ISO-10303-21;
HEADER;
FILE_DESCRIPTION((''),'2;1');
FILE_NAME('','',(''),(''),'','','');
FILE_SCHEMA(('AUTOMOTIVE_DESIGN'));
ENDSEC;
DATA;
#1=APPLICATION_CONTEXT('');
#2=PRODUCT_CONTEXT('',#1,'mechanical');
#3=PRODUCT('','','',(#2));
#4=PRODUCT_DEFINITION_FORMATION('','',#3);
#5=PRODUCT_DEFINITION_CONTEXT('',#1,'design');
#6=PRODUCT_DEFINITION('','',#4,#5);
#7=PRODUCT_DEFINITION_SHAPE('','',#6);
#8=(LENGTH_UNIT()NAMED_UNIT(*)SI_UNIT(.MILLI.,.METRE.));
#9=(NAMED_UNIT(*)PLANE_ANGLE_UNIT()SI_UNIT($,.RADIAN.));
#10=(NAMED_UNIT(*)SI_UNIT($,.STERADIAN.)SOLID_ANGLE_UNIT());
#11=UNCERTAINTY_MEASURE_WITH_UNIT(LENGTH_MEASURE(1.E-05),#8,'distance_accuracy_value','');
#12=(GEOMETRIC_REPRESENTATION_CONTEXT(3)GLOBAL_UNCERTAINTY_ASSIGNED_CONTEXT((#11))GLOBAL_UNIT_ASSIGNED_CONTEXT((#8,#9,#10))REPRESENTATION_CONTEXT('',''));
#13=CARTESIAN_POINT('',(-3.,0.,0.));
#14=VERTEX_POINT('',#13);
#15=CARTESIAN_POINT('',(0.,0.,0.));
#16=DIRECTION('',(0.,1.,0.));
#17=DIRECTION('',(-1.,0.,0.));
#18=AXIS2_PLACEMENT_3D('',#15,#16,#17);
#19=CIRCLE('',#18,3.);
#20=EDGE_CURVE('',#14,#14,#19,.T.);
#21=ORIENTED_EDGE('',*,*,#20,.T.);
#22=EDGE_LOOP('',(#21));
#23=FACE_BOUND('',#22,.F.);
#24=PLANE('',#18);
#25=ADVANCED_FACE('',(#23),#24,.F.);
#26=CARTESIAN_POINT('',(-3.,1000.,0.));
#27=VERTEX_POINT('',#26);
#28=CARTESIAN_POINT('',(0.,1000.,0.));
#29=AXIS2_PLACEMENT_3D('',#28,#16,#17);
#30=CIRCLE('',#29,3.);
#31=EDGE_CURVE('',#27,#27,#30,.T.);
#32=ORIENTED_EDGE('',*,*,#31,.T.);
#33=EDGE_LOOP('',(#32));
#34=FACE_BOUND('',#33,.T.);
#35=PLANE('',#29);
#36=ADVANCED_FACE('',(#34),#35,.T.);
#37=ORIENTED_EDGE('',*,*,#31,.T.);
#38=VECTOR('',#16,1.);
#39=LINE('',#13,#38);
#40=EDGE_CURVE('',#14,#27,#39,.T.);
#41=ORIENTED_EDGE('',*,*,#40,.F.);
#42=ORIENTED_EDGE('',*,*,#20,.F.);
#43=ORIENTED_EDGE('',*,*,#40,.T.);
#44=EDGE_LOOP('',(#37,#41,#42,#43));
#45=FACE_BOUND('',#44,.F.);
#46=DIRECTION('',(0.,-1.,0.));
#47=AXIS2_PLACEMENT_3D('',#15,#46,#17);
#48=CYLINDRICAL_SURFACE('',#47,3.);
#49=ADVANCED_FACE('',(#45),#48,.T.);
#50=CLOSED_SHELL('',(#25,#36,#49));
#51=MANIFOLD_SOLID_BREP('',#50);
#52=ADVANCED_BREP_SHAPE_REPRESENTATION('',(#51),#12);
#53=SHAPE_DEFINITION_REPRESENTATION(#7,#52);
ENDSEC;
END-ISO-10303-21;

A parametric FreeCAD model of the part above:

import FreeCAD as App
import Part
import Sketcher
Q = App.Units.Quantity

doc = App.newDocument("Part")
body = doc.addObject("PartDesign::Body", "Body")

# Sketch on XZ plane
sketch1 = doc.addObject("Sketcher::SketchObject", "Sketch")
body.addObject(sketch1)
sketch1.AttachmentSupport = (doc.XZ_Plane, [""])
sketch1.MapMode = "FlatFace"
sketch1.addGeometry(Part.Circle(App.Vector(0, 0, 0), App.Vector(0, 0, 1), 3), False)
sketch1.addConstraint([
    Sketcher.Constraint("Coincident", 0, 3, -1, 1),
    Sketcher.Constraint("Diameter", 0, Q("6 mm")),
])
pad1 = doc.addObject("PartDesign::Pad", "Pad")
body.addObject(pad1)
pad1.Profile = sketch1
pad1.Length = 1000
pad1.Reversed = True

doc.recompute()
